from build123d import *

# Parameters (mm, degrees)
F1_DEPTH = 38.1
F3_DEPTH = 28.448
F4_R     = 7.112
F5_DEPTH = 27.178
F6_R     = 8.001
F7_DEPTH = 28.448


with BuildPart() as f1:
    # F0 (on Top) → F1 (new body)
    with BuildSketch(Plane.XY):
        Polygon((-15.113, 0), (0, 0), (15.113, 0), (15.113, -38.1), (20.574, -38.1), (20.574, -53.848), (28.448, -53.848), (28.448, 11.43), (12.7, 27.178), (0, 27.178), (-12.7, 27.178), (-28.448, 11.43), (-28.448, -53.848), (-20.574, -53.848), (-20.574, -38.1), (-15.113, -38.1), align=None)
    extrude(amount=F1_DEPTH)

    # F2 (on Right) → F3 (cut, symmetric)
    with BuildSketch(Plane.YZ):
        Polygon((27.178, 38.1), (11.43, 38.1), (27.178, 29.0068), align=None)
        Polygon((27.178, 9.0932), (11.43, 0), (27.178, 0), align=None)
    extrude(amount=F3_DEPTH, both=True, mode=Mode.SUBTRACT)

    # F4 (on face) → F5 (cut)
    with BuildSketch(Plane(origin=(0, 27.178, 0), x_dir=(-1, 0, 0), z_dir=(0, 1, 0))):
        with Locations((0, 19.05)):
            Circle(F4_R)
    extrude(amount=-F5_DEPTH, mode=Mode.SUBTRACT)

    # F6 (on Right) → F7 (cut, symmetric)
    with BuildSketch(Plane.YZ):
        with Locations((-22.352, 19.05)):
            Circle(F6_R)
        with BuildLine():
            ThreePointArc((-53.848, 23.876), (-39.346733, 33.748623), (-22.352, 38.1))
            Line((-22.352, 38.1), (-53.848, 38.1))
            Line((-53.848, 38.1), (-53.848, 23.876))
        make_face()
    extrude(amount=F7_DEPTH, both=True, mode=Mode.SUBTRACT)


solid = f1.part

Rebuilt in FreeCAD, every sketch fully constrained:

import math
import FreeCAD as App
import Part
import Sketcher

V = App.Vector
Q = App.Units.Quantity

doc = App.newDocument("Part")
body = doc.addObject("PartDesign::Body", "Body")

sketch1 = body.newObject("Sketcher::SketchObject", "Sketch")
sketch1.AttachmentSupport = (doc.getObject("XY_Plane"), [""])
sketch1.MapMode = "FlatFace"
sketch1.addGeometry([
    Part.LineSegment(V(-15.113, 0, 0), V(15.113, 0, 0)),
    Part.LineSegment(V(15.113, 0, 0), V(15.113, -38.1, 0)),
    Part.LineSegment(V(15.113, -38.1, 0), V(20.574, -38.1, 0)),
    Part.LineSegment(V(20.574, -38.1, 0), V(20.574, -53.848, 0)),
    Part.LineSegment(V(20.574, -53.848, 0), V(28.448, -53.848, 0)),
    Part.LineSegment(V(28.448, -53.848, 0), V(28.448, 11.43, 0)),
    Part.LineSegment(V(28.448, 11.43, 0), V(12.7, 27.178, 0)),
    Part.LineSegment(V(12.7, 27.178, 0), V(-12.7, 27.178, 0)),
    Part.LineSegment(V(-12.7, 27.178, 0), V(-28.448, 11.43, 0)),
    Part.LineSegment(V(-28.448, 11.43, 0), V(-28.448, -53.848, 0)),
    Part.LineSegment(V(-28.448, -53.848, 0), V(-20.574, -53.848, 0)),
    Part.LineSegment(V(-20.574, -53.848, 0), V(-20.574, -38.1, 0)),
    Part.LineSegment(V(-20.574, -38.1, 0), V(-15.113, -38.1, 0)),
    Part.LineSegment(V(-15.113, -38.1, 0), V(-15.113, 0, 0)),
], False)
sketch1.addConstraint([
    Sketcher.Constraint("Coincident", 0, 2, 1, 1),
    Sketcher.Constraint("Coincident", 1, 2, 2, 1),
    Sketcher.Constraint("Coincident", 2, 2, 3, 1),
    Sketcher.Constraint("Coincident", 3, 2, 4, 1),
    Sketcher.Constraint("Coincident", 4, 2, 5, 1),
    Sketcher.Constraint("Coincident", 5, 2, 6, 1),
    Sketcher.Constraint("Coincident", 6, 2, 7, 1),
    Sketcher.Constraint("Coincident", 7, 2, 8, 1),
    Sketcher.Constraint("Coincident", 8, 2, 9, 1),
    Sketcher.Constraint("Coincident", 9, 2, 10, 1),
    Sketcher.Constraint("Coincident", 10, 2, 11, 1),
    Sketcher.Constraint("Coincident", 11, 2, 12, 1),
    Sketcher.Constraint("Coincident", 12, 2, 13, 1),
    Sketcher.Constraint("Coincident", 13, 2, 0, 1),
    Sketcher.Constraint("Horizontal", 0),
    Sketcher.Constraint("Vertical", 1),
    Sketcher.Constraint("Horizontal", 2),
    Sketcher.Constraint("Vertical", 3),
    Sketcher.Constraint("Horizontal", 4),
    Sketcher.Constraint("Vertical", 5),
    Sketcher.Constraint("Horizontal", 7),
    Sketcher.Constraint("Vertical", 9),
    Sketcher.Constraint("Horizontal", 10),
    Sketcher.Constraint("Vertical", 11),
    Sketcher.Constraint("Horizontal", 12),
    Sketcher.Constraint("Vertical", 13),
    Sketcher.Constraint("Symmetric", 0, 2, 13, 2, -1, 1),
    Sketcher.Constraint("Symmetric", 5, 2, 8, 2, -2),
    Sketcher.Constraint("Symmetric", 3, 2, 10, 2, -2),
    Sketcher.Constraint("Perpendicular", 6, 8),
    Sketcher.Constraint("Horizontal", 2, 2, 11, 2),
    Sketcher.Constraint("Equal", 6, 8),
    Sketcher.Constraint("DistanceX", 7, 2, 7, 1, Q("1 in")),
    Sketcher.Constraint("DistanceY", 1, 2, 1, 1, Q("1.5 in")),
    Sketcher.Constraint("DistanceX", 0, 1, 0, 2, Q("1.19 in")),
    Sketcher.Constraint("DistanceX", 4, 1, 4, 2, Q("0.31 in")),
    Sketcher.Constraint("DistanceY", 3, 2, 3, 1, Q("0.62 in")),
    Sketcher.Constraint("DistanceY", 5, 1, 5, 2, Q("2.57 in")),
    Sketcher.Constraint("DistanceX", 2, 1, 2, 2, Q("0.215 in")),
])
pad1 = body.newObject("PartDesign::Pad", "Pad")
pad1.Profile = sketch1
pad1.Length = Q("1.5 in")

sketch2 = body.newObject("Sketcher::SketchObject", "Sketch001")
sketch2.AttachmentSupport = (doc.getObject("YZ_Plane"), [""])
sketch2.MapMode = "FlatFace"
sketch2.addGeometry([
    Part.LineSegment(V(27.178, 38.1, 0), V(11.43, 38.1, 0)),
    Part.LineSegment(V(11.43, 38.1, 0), V(27.178, 29.0068, 0)),
    Part.LineSegment(V(27.178, 29.0068, 0), V(27.178, 38.1, 0)),
    Part.LineSegment(V(27.178, 9.0932, 0), V(11.43, 0, 0)),
    Part.LineSegment(V(11.43, 0, 0), V(27.178, 0, 0)),
    Part.LineSegment(V(27.178, 0, 0), V(27.178, 9.0932, 0)),
], False)
sketch2.addConstraint([
    Sketcher.Constraint("Coincident", 0, 2, 1, 1),
    Sketcher.Constraint("Coincident", 1, 2, 2, 1),
    Sketcher.Constraint("Coincident", 2, 2, 0, 1),
    Sketcher.Constraint("Coincident", 3, 2, 4, 1),
    Sketcher.Constraint("Coincident", 4, 2, 5, 1),
    Sketcher.Constraint("Coincident", 5, 2, 3, 1),
    Sketcher.Constraint("Horizontal", 0),
    Sketcher.Constraint("Vertical", 2),
    Sketcher.Constraint("Horizontal", 4),
    Sketcher.Constraint("Vertical", 5),
    Sketcher.Constraint("PointOnObject", 3, 2, -1),
    Sketcher.Constraint("Vertical", 0, 2, 3, 2),
    Sketcher.Constraint("Vertical", 2, 2, 4, 2),
    Sketcher.Constraint("Equal", 2, 5),
    Sketcher.Constraint("DistanceX", 0, 2, 0, 1, Q("0.62 in")),
    Sketcher.Constraint("DistanceY", -1, 1, 0, 2, Q("1.5 in")),
    Sketcher.Constraint("DistanceY", 2, 1, 2, 2, Q("0.358 in")),
    Sketcher.Constraint("DistanceX", -1, 1, 0, 2, Q("0.45 in")),
])
pocket1 = body.newObject("PartDesign::Pocket", "Pocket")
pocket1.Profile = sketch2
pocket1.Length = Q("2.24 in")
pocket1.Midplane = True

sketch3 = body.newObject("Sketcher::SketchObject", "Sketch002")
sketch3.AttachmentSupport = (doc.getObject("XZ_Plane"), [""])
sketch3.MapMode = "FlatFace"
sketch3.AttachmentOffset = App.Placement(V(0, 0, -1.07 * 25.4), App.Rotation())
sketch3.addGeometry(Part.Circle(V(0, 19.05, 0), V(0, 0, 1), 7.112), False)
sketch3.addConstraint([
    Sketcher.Constraint("PointOnObject", 0, 3, -2),
    Sketcher.Constraint("Diameter", 0, Q("0.56 in")),
    Sketcher.Constraint("DistanceY", -1, 1, 0, 3, Q("0.75 in")),
])
pocket2 = body.newObject("PartDesign::Pocket", "Pocket001")
pocket2.Profile = sketch3
pocket2.Length = Q("1.07 in")
pocket2.Reversed = True

sketch4 = body.newObject("Sketcher::SketchObject", "Sketch003")
sketch4.AttachmentSupport = (doc.getObject("YZ_Plane"), [""])
sketch4.MapMode = "FlatFace"
sketch4.addGeometry([
    Part.Circle(V(-22.352, 19.05, 0), V(0, 0, 1), 8.001),
    Part.ArcOfCircle(Part.Circle(V(-18.438131, -12.548996, 0), V(0, 0, 1), 50.799992), math.radians(94.418714), math.radians(134.190385)),
    Part.LineSegment(V(-22.352, 38.1, 0), V(-53.848, 38.1, 0)),
    Part.LineSegment(V(-53.848, 38.1, 0), V(-53.848, 23.876, 0)),
], False)
sketch4.addConstraint([
    Sketcher.Constraint("Coincident", 1, 1, 2, 1),
    Sketcher.Constraint("Coincident", 2, 2, 3, 1),
    Sketcher.Constraint("Coincident", 3, 2, 1, 2),
    Sketcher.Constraint("Horizontal", 2),
    Sketcher.Constraint("Vertical", 3),
    Sketcher.Constraint("Vertical", 0, 3, 1, 1),
    Sketcher.Constraint("Diameter", 0, Q("0.63 in")),
    Sketcher.Constraint("DistanceX", 2, 2, 2, 1, Q("1.24 in")),
    Sketcher.Constraint("DistanceY", 3, 2, 3, 1, Q("0.56 in")),
    Sketcher.Constraint("DistanceY", -1, 1, 1, 1, Q("1.5 in")),
    Sketcher.Constraint("DistanceX", 0, 3, -1, 1, Q("0.88 in")),
    Sketcher.Constraint("DistanceY", -1, 1, 0, 3, Q("0.75 in")),
    Sketcher.Constraint("Radius", 1, Q("50.799992 mm")),
])
pocket3 = body.newObject("PartDesign::Pocket", "Pocket002")
pocket3.Profile = sketch4
pocket3.Length = Q("2.24 in")
pocket3.Midplane = True

doc.recompute()
